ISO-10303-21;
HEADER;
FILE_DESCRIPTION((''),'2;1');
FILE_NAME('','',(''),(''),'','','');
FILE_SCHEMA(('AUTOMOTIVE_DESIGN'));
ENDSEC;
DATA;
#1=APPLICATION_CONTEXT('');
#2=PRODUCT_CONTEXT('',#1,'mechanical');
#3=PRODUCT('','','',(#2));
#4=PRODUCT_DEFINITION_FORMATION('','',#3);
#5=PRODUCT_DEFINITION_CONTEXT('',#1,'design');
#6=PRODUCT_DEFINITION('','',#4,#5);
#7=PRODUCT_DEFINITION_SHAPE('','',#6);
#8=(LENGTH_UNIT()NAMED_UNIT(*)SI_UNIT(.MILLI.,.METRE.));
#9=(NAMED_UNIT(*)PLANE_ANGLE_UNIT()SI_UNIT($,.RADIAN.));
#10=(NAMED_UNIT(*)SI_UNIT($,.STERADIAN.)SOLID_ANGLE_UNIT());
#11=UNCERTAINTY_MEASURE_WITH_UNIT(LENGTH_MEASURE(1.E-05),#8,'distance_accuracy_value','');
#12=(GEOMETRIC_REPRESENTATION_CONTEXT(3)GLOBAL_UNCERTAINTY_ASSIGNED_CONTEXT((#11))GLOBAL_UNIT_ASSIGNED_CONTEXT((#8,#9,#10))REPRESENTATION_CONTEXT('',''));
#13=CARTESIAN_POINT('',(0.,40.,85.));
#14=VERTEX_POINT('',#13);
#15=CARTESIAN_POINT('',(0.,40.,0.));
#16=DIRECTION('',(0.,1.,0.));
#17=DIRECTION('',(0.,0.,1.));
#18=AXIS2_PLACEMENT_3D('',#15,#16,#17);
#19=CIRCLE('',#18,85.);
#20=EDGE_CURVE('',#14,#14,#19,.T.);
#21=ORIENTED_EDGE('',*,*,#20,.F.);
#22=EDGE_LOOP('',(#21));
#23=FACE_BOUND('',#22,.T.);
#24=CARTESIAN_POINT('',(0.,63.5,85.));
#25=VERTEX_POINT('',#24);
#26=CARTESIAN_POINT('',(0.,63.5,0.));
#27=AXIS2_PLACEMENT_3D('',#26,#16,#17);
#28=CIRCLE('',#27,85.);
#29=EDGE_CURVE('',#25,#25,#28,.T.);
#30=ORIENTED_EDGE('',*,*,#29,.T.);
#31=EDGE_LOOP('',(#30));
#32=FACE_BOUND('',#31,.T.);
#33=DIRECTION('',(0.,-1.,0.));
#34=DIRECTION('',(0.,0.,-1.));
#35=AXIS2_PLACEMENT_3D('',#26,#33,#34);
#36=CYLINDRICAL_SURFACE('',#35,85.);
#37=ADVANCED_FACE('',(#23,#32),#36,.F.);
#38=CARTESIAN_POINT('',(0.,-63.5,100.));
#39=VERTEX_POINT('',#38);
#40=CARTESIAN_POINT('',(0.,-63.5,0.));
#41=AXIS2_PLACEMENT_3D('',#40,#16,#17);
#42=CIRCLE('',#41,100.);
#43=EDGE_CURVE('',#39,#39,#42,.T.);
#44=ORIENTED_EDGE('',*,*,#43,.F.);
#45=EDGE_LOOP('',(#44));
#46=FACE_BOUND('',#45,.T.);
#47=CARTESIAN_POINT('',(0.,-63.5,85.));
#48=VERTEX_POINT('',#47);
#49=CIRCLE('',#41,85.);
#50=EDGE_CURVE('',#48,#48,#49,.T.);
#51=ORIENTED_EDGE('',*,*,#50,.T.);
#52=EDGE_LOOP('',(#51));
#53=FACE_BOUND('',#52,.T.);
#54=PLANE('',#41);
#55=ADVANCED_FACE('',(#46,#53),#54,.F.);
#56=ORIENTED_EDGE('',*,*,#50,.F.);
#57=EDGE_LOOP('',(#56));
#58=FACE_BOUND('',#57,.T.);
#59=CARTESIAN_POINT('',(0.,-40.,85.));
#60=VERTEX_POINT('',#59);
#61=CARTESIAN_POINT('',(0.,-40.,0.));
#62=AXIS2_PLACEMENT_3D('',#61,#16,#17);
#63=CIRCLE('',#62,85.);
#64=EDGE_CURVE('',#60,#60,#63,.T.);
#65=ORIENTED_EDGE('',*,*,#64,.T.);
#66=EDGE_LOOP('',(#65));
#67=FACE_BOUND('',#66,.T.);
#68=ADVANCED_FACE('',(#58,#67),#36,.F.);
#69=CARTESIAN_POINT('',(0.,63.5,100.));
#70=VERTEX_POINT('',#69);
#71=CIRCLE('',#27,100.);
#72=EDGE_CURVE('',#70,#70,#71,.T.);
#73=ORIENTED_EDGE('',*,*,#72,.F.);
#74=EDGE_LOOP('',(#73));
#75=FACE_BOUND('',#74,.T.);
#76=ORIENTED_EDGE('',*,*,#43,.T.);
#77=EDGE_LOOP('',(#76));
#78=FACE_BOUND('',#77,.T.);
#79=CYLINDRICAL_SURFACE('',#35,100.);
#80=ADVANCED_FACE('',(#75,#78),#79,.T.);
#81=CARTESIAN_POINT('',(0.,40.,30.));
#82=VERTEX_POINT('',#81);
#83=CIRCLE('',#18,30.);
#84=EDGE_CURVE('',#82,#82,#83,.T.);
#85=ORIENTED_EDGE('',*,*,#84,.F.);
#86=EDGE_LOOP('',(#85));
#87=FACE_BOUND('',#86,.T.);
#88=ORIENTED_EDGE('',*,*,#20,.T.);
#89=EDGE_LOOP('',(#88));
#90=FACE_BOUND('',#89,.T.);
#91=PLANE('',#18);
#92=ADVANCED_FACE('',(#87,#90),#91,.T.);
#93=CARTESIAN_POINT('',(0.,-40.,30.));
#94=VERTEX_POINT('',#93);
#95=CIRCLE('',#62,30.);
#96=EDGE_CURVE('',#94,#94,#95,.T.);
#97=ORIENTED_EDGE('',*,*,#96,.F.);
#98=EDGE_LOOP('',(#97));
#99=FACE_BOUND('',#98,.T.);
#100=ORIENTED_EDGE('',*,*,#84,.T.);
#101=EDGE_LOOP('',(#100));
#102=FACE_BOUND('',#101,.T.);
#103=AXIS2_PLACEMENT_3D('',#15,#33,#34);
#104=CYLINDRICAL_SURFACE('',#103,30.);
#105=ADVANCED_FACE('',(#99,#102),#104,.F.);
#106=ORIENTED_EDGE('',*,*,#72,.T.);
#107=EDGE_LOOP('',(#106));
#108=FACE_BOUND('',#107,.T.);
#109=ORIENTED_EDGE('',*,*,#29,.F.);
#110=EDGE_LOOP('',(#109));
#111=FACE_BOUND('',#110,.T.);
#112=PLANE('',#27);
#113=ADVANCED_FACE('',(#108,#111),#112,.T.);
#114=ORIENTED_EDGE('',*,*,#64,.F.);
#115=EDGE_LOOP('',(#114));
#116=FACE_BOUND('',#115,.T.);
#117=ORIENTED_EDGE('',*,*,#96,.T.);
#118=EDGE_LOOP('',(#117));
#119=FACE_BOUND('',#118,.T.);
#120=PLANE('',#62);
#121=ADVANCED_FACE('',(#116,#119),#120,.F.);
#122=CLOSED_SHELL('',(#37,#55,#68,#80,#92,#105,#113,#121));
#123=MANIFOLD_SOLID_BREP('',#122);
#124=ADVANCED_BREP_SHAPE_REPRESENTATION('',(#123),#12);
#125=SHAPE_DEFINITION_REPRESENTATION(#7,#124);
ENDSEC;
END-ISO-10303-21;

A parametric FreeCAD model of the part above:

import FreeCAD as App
import Part
import Sketcher

doc = App.newDocument("Part")
body = doc.addObject("PartDesign::Body", "Body")

# Sketch on XZ plane
sketch1 = doc.addObject("Sketcher::SketchObject", "Sketch")
body.addObject(sketch1)
sketch1.AttachmentSupport = (doc.XZ_Plane, [""])
sketch1.MapMode = "FlatFace"
sketch1.addGeometry([
    Part.Circle(App.Vector(0, 0, 0), App.Vector(0, 0, 1), 100),
    Part.Circle(App.Vector(0, 0, 0), App.Vector(0, 0, 1), 85),
], False)
sketch1.addConstraint([
    Sketcher.Constraint("Coincident", 0, 3, -1, 1),
    Sketcher.Constraint("Coincident", 1, 3, -1, 1),
    Sketcher.Constraint("Diameter", 0, 200.0),
    Sketcher.Constraint("Diameter", 1, 170.0),
])
pad1 = doc.addObject("PartDesign::Pad", "Pad")
body.addObject(pad1)
pad1.Profile = sketch1
pad1.Length = 127
pad1.Midplane = True

# Sketch on XZ plane
sketch2 = doc.addObject("Sketcher::SketchObject", "Sketch001")
body.addObject(sketch2)
sketch2.AttachmentSupport = (doc.XZ_Plane, [""])
sketch2.MapMode = "FlatFace"
sketch2.addGeometry([
    Part.Circle(App.Vector(0, 0, 0), App.Vector(0, 0, 1), 85),
    Part.Circle(App.Vector(0, 0, 0), App.Vector(0, 0, 1), 30),
], False)
sketch2.addConstraint([
    Sketcher.Constraint("Coincident", 0, 3, -1, 1),
    Sketcher.Constraint("Coincident", 1, 3, -1, 1),
    Sketcher.Constraint("Diameter", 0, 170.0),
    Sketcher.Constraint("Diameter", 1, 60.0),
])
pad2 = doc.addObject("PartDesign::Pad", "Pad001")
body.addObject(pad2)
pad2.Profile = sketch2
pad2.Length = 80
pad2.Midplane = True

doc.recompute()
